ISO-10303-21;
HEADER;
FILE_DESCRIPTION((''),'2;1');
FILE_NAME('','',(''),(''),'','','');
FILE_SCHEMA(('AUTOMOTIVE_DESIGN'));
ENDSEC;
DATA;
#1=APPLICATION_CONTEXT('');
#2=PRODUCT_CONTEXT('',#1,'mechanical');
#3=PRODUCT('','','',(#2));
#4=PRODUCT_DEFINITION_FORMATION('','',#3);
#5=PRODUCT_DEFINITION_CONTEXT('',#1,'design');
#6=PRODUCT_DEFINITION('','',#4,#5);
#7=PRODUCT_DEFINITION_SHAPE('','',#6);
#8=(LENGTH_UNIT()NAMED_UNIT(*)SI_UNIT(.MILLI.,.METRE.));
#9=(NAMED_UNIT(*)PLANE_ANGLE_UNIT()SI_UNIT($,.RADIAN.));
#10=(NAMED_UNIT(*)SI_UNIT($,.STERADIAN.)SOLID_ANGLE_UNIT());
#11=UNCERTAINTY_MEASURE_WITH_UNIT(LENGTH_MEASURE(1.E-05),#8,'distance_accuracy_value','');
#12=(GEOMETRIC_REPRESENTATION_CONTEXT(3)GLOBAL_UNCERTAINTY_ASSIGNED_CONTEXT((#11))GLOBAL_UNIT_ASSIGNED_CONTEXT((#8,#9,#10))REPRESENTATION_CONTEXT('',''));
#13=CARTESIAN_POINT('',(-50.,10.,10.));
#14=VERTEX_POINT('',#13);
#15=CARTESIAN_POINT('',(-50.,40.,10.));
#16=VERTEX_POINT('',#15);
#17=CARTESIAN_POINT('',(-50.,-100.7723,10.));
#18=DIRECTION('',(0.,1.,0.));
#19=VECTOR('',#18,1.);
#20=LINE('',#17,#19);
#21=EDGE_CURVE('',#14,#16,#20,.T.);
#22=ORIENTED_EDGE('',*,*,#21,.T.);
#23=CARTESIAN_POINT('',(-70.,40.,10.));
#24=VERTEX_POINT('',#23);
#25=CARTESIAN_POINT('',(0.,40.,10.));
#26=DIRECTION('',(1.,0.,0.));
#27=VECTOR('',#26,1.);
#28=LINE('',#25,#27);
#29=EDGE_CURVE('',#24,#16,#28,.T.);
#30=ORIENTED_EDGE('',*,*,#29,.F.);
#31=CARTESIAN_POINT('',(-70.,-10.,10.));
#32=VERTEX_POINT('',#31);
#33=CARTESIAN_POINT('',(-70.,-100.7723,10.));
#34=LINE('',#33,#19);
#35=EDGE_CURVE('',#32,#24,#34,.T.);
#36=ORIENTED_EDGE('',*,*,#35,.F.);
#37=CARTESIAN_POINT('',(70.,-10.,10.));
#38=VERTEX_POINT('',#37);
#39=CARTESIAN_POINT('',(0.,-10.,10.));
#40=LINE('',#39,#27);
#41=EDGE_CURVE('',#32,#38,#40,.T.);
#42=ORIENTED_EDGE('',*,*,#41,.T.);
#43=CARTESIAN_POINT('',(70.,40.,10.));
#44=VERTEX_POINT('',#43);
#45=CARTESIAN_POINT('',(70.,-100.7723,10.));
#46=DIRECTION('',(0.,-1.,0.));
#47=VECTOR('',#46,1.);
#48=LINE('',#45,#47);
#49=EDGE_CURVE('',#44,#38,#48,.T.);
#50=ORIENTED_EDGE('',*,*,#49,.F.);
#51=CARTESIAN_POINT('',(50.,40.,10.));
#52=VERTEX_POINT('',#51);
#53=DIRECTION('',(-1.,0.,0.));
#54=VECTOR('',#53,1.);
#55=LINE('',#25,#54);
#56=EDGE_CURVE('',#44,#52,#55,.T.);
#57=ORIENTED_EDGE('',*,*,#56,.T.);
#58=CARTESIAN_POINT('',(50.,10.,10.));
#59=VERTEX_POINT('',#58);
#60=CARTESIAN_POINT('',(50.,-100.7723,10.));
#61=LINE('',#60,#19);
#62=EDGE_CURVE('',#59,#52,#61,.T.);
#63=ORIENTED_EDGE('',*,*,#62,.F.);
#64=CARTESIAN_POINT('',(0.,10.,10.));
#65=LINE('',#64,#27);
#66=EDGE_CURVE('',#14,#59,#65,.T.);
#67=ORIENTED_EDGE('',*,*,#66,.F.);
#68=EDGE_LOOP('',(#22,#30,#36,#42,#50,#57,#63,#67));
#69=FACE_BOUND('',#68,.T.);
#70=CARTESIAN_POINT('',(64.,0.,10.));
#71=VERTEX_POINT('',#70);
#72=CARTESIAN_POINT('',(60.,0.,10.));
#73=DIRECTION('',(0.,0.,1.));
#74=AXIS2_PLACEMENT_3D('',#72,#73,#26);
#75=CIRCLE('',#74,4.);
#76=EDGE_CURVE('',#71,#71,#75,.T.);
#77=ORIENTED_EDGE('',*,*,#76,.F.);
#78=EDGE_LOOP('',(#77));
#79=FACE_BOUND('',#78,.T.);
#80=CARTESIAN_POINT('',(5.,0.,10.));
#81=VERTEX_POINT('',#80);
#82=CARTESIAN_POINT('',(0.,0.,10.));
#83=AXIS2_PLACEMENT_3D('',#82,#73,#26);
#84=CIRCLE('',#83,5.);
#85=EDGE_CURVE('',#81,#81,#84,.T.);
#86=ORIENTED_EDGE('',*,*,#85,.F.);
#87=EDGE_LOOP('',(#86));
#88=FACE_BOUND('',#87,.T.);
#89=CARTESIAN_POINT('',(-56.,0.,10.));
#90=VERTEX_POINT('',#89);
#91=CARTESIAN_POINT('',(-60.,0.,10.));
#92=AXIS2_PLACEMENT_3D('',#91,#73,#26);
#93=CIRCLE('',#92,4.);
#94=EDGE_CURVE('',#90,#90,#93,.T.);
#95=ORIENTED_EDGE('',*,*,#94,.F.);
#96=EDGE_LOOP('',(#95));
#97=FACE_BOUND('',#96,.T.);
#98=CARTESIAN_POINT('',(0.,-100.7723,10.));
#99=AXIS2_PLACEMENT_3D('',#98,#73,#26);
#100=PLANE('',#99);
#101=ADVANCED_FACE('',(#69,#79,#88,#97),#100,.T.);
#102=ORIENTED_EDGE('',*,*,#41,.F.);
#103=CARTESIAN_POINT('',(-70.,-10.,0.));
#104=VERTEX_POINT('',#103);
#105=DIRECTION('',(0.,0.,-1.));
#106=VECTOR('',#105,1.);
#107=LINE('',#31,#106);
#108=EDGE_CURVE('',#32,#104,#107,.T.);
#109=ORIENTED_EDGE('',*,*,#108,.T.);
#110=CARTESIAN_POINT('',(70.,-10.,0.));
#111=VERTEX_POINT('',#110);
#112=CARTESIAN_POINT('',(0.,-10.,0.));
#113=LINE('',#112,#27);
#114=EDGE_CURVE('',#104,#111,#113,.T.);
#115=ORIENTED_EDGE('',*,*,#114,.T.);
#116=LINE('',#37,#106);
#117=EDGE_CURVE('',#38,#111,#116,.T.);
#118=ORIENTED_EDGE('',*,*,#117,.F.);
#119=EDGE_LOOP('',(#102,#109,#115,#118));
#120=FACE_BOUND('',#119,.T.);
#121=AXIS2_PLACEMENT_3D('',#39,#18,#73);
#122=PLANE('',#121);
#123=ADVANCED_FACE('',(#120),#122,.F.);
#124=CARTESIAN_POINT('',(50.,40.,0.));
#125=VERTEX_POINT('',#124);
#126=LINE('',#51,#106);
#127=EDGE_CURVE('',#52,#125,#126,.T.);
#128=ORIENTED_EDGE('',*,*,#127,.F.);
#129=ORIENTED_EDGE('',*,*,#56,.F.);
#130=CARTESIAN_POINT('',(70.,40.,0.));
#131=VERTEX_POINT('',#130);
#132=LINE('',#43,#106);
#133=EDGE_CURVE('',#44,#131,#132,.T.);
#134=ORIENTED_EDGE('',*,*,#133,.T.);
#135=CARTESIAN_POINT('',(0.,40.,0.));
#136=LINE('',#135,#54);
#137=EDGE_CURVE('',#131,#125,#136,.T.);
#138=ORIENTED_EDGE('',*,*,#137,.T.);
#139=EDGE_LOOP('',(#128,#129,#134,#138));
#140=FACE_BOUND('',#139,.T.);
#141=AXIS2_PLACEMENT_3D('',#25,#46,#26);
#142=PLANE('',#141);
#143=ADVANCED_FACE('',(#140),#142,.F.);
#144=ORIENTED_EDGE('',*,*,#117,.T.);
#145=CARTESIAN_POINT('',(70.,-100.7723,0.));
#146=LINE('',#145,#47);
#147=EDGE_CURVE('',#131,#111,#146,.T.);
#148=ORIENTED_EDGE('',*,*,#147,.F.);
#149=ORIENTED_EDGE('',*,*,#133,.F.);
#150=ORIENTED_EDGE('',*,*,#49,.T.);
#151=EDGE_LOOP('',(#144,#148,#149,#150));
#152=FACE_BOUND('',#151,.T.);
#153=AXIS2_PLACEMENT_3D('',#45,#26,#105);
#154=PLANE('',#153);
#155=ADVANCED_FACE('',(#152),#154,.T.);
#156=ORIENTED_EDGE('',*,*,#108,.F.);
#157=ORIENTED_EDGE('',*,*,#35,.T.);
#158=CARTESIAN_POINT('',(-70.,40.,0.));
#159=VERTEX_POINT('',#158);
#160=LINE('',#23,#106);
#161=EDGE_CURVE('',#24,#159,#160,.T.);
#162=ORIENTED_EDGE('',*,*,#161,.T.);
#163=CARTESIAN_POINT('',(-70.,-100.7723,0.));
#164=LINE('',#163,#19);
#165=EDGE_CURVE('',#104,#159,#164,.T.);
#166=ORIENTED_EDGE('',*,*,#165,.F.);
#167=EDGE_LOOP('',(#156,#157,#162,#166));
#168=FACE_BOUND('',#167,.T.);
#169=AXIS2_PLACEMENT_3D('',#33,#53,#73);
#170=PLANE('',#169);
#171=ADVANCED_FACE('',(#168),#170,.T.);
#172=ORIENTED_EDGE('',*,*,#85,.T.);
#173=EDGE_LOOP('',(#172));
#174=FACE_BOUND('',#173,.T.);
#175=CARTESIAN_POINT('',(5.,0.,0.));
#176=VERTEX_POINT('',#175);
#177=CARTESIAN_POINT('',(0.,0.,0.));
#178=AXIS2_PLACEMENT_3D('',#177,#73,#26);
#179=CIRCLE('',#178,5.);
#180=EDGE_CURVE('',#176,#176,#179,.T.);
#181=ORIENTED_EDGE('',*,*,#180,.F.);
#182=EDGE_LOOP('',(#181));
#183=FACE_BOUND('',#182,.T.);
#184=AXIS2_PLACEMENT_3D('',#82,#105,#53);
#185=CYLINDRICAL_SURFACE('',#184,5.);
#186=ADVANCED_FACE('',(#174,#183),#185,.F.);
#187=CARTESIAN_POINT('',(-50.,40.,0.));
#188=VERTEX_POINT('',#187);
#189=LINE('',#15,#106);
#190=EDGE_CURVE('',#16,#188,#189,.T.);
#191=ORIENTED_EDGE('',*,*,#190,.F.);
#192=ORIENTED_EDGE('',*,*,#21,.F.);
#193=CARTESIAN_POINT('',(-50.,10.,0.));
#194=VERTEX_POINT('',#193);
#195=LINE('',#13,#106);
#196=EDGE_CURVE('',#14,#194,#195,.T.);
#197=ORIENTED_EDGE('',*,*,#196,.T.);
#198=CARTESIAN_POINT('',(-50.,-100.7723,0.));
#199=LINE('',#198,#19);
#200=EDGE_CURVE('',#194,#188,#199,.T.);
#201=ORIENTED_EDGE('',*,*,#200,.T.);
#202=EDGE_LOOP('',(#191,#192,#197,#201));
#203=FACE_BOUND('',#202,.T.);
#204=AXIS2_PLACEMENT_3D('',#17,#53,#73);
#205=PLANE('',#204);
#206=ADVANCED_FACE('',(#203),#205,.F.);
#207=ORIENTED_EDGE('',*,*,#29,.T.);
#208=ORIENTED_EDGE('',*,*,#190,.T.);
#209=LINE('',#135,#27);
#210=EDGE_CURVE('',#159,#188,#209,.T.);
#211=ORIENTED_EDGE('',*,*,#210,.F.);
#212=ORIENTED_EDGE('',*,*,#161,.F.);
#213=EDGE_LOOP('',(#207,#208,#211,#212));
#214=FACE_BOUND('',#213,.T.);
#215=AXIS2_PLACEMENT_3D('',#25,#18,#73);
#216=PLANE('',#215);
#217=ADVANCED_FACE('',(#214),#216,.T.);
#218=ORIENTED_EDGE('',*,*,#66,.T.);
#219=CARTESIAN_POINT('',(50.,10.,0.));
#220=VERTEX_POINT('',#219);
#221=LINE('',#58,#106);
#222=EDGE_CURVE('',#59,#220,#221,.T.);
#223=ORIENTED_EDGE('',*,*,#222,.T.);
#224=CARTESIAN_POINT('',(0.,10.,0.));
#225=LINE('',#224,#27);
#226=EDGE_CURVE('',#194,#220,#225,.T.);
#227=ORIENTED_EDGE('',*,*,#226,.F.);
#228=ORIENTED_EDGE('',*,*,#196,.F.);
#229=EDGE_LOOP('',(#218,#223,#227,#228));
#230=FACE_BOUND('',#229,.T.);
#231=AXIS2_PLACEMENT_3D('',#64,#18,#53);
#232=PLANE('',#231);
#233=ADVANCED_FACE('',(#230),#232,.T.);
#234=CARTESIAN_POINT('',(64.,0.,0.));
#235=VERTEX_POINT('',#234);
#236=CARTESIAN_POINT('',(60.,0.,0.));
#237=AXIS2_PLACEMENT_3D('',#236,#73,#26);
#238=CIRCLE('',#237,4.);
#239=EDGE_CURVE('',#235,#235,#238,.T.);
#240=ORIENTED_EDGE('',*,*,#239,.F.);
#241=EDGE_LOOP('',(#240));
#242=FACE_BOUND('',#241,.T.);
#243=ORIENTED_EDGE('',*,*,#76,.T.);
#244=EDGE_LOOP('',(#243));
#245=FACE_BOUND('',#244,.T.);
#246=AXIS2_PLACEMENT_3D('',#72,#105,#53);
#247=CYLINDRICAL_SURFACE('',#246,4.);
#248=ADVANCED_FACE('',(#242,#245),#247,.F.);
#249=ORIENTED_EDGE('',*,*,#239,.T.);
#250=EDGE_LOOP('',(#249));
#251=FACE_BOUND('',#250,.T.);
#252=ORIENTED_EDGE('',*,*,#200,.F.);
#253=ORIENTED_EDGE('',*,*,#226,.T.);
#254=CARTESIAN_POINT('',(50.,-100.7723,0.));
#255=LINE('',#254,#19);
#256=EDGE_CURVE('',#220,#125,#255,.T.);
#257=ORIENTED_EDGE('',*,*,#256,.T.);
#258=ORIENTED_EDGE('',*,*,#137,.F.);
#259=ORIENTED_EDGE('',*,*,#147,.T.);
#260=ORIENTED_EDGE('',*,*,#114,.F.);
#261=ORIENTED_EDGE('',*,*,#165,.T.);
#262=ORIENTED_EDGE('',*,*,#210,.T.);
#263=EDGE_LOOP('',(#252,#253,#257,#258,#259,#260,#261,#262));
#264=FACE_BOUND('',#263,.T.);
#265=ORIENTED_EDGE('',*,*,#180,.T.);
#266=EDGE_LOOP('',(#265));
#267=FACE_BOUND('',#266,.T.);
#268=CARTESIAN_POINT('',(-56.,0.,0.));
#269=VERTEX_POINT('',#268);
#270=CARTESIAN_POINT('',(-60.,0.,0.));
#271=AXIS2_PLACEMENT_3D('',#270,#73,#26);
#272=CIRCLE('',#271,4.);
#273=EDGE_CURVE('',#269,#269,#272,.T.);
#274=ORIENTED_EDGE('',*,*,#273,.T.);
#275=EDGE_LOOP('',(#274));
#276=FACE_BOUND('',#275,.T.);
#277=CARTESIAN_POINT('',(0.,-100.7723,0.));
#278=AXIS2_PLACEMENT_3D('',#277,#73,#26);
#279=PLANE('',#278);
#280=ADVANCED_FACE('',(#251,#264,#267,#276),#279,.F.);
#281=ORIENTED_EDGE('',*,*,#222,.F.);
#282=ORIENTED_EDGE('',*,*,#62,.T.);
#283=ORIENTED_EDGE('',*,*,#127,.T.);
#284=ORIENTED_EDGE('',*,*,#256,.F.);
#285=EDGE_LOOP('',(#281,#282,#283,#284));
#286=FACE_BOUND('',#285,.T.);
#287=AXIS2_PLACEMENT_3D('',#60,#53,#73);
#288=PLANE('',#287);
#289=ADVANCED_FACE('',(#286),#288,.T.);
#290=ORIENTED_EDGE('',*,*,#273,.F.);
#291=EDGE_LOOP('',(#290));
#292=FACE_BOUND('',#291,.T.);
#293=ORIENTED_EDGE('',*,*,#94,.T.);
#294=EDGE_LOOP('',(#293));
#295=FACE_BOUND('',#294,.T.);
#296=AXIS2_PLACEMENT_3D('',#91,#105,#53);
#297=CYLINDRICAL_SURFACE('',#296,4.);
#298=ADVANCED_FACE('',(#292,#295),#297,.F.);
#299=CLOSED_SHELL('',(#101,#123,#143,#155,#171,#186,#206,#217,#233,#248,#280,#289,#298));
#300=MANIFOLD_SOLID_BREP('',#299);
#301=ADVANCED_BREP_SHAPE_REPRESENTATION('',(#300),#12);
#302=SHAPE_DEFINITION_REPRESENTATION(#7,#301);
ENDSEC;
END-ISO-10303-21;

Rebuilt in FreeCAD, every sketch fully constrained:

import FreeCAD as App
import Part
import Sketcher

doc = App.newDocument("Part")
body = doc.addObject("PartDesign::Body", "Body")

sketch1 = body.newObject("Sketcher::SketchObject", "Sketch")
sketch1.AttachmentSupport = (doc.getObject("XY_Plane"), [""])
sketch1.MapMode = "FlatFace"
sketch1.addGeometry(Part.LineSegment(App.Vector(-70, 40, 0), App.Vector(-70, -10, 0)), False)
sketch1.addGeometry(Part.LineSegment(App.Vector(-70, -10, 0), App.Vector(70, -10, 0)), False)
sketch1.addGeometry(Part.LineSegment(App.Vector(70, -10, 0), App.Vector(70, 40, 0)), False)
sketch1.addGeometry(Part.LineSegment(App.Vector(70, 40, 0), App.Vector(50, 40, 0)), False)
sketch1.addGeometry(Part.LineSegment(App.Vector(50, 40, 0), App.Vector(50, 10, 0)), False)
sketch1.addGeometry(Part.LineSegment(App.Vector(50, 10, 0), App.Vector(-50, 10, 0)), False)
sketch1.addGeometry(Part.LineSegment(App.Vector(-50, 10, 0), App.Vector(-50, 40, 0)), False)
sketch1.addGeometry(Part.LineSegment(App.Vector(-50, 40, 0), App.Vector(-70, 40, 0)), False)
sketch1.addGeometry(Part.Circle(App.Vector(-60, 0, 0), App.Vector(0, 0, 1), 4), False)
sketch1.addGeometry(Part.Circle(App.Vector(0, 0, 0), App.Vector(0, 0, 1), 5), False)
sketch1.addGeometry(Part.Circle(App.Vector(60, 0, 0), App.Vector(0, 0, 1), 4), False)
sketch1.addConstraint(Sketcher.Constraint("Coincident", 0, 2, 1, 1))
sketch1.addConstraint(Sketcher.Constraint("Coincident", 1, 2, 2, 1))
sketch1.addConstraint(Sketcher.Constraint("Coincident", 2, 2, 3, 1))
sketch1.addConstraint(Sketcher.Constraint("Coincident", 3, 2, 4, 1))
sketch1.addConstraint(Sketcher.Constraint("Coincident", 4, 2, 5, 1))
sketch1.addConstraint(Sketcher.Constraint("Coincident", 5, 2, 6, 1))
sketch1.addConstraint(Sketcher.Constraint("Coincident", 6, 2, 7, 1))
sketch1.addConstraint(Sketcher.Constraint("Coincident", 7, 2, 0, 1))
sketch1.addConstraint(Sketcher.Constraint("Vertical", 0))
sketch1.addConstraint(Sketcher.Constraint("Horizontal", 1))
sketch1.addConstraint(Sketcher.Constraint("Vertical", 2))
sketch1.addConstraint(Sketcher.Constraint("Horizontal", 3))
sketch1.addConstraint(Sketcher.Constraint("Vertical", 4))
sketch1.addConstraint(Sketcher.Constraint("Horizontal", 5))
sketch1.addConstraint(Sketcher.Constraint("Vertical", 6))
sketch1.addConstraint(Sketcher.Constraint("Horizontal", 7))
sketch1.addConstraint(Sketcher.Constraint("Coincident", 9, 3, -1, 1))
sketch1.addConstraint(Sketcher.Constraint("Equal", 8, 10))
sketch1.addConstraint(Sketcher.Constraint("Symmetric", 8, 3, 10, 3, -1, 1))
sketch1.addConstraint(Sketcher.Constraint("Symmetric", 3, 2, 6, 2, -2))
sketch1.addConstraint(Sketcher.Constraint("PointOnObject", 8, 3, -1))
sketch1.addConstraint(Sketcher.Constraint("Equal", 3, 7))
sketch1.addConstraint(Sketcher.Constraint("Diameter", 8, 8.0))
sketch1.addConstraint(Sketcher.Constraint("Diameter", 9, 10.0))
sketch1.addConstraint(Sketcher.Constraint("DistanceX", 1, 1, 1, 2, 140.0))
sketch1.addConstraint(Sketcher.Constraint("DistanceX", 3, 2, 3, 1, 20.0))
sketch1.addConstraint(Sketcher.Constraint("DistanceY", 0, 2, 0, 1, 50.0))
sketch1.addConstraint(Sketcher.Constraint("DistanceY", 4, 2, 4, 1, 30.0))
sketch1.addConstraint(Sketcher.Constraint("DistanceX", 8, 3, -1, 1, 60.0))
sketch1.addConstraint(Sketcher.Constraint("DistanceY", 0, 2, -1, 1, 10.0))
pad1 = body.newObject("PartDesign::Pad", "Pad")
pad1.Profile = sketch1
pad1.Length = 10

doc.recompute()
